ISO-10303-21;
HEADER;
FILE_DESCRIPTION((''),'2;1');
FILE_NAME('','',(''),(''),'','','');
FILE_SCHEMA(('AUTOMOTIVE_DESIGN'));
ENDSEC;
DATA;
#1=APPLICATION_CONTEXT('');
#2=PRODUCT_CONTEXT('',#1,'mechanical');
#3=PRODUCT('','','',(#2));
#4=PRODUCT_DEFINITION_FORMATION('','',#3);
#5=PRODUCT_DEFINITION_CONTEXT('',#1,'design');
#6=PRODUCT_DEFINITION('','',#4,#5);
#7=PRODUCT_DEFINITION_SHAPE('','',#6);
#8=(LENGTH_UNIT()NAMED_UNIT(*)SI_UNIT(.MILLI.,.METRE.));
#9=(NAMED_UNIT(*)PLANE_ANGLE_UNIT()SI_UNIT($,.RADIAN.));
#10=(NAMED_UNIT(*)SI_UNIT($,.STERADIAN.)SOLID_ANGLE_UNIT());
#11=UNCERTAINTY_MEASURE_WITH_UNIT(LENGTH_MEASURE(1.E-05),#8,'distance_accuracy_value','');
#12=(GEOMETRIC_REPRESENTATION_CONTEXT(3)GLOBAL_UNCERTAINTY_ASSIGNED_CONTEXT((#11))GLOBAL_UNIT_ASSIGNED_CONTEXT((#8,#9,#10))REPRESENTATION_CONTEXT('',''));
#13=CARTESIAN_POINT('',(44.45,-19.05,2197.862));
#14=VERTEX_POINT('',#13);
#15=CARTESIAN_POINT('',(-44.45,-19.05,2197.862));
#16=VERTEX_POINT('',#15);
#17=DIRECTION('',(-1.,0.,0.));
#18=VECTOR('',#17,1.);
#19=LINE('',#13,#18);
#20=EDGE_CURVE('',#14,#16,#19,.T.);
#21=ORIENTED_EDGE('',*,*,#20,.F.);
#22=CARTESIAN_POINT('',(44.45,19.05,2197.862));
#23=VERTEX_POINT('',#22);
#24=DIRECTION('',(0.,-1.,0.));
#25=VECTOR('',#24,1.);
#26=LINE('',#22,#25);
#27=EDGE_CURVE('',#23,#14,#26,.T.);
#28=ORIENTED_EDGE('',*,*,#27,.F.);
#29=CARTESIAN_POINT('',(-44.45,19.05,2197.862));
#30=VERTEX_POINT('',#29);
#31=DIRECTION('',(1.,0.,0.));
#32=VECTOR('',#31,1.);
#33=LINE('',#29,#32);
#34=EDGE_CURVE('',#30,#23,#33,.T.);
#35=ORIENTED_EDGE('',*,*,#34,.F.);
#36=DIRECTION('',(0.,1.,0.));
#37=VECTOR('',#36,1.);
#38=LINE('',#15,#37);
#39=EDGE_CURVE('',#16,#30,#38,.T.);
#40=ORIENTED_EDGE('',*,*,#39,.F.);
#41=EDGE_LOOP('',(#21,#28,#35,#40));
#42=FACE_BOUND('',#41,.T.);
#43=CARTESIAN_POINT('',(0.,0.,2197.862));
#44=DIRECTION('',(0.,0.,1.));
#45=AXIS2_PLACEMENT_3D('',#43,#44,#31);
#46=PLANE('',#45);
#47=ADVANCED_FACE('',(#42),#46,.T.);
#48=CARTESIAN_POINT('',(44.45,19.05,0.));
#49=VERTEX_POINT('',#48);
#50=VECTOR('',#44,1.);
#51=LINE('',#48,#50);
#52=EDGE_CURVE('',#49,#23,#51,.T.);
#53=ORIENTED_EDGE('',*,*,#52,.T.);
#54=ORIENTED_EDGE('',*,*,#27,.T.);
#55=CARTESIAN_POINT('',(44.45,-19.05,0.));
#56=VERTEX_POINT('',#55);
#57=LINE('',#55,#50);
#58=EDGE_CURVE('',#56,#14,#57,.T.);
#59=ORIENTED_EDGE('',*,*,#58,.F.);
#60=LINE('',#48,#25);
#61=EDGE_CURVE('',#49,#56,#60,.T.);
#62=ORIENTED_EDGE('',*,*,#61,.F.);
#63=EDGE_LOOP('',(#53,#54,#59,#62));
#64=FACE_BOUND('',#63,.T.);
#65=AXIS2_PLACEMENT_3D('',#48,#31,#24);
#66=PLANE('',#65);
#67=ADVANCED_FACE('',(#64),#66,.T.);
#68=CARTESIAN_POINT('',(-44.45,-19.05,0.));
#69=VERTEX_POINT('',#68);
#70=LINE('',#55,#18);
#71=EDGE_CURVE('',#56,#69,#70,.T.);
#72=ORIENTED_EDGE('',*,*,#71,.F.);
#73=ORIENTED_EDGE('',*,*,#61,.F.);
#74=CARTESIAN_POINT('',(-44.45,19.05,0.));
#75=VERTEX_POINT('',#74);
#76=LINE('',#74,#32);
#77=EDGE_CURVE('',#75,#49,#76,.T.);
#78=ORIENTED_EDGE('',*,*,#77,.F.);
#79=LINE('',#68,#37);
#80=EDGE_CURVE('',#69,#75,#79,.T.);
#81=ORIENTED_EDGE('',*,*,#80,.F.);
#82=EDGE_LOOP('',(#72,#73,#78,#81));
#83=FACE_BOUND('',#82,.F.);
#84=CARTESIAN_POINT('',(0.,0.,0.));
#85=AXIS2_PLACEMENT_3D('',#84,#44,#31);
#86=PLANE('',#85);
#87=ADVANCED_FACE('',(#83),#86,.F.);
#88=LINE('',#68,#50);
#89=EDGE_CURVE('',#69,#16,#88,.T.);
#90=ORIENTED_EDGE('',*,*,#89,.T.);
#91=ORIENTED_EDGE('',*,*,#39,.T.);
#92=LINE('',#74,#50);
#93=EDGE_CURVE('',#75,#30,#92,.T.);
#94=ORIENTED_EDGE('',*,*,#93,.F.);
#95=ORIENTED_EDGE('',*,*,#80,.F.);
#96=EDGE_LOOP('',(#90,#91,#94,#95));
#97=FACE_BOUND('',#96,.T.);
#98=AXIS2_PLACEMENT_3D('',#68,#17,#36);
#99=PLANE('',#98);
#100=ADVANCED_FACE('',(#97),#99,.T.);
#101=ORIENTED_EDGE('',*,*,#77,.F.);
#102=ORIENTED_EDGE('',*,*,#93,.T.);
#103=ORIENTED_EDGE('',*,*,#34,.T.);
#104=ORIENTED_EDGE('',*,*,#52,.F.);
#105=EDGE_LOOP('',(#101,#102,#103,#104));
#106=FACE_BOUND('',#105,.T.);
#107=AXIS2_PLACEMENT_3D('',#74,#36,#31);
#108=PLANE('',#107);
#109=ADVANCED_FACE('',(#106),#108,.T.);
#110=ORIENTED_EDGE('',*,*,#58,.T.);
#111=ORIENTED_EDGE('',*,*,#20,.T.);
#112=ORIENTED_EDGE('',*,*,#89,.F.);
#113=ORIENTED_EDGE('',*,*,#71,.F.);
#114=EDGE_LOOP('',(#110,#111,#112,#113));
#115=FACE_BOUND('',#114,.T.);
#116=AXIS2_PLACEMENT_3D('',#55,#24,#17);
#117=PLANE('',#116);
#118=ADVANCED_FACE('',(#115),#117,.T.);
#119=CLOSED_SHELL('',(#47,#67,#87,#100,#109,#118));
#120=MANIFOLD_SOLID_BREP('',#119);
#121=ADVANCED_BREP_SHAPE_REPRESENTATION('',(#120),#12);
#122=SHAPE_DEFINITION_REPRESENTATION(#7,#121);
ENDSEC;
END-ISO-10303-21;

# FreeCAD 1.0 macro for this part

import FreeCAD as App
import Part
import Sketcher
from FreeCAD import Vector
Q = App.Units.Quantity

doc = App.newDocument("Part")
body = doc.addObject("PartDesign::Body", "Body")

sketch1 = body.newObject("Sketcher::SketchObject", "Sketch")
sketch1.AttachmentSupport = (doc.getObject("XY_Plane"), [""])
sketch1.MapMode = "FlatFace"
sketch1.addGeometry([
    Part.LineSegment(Vector(-44.45, -19.05, 0), Vector(44.45, -19.05, 0)),
    Part.LineSegment(Vector(44.45, -19.05, 0), Vector(44.45, 19.05, 0)),
    Part.LineSegment(Vector(44.45, 19.05, 0), Vector(-44.45, 19.05, 0)),
    Part.LineSegment(Vector(-44.45, 19.05, 0), Vector(-44.45, -19.05, 0)),
], False)
sketch1.addConstraint([
    Sketcher.Constraint("Coincident", 0, 2, 1, 1),
    Sketcher.Constraint("Coincident", 1, 2, 2, 1),
    Sketcher.Constraint("Coincident", 2, 2, 3, 1),
    Sketcher.Constraint("Coincident", 3, 2, 0, 1),
    Sketcher.Constraint("Horizontal", 0),
    Sketcher.Constraint("Vertical", 1),
    Sketcher.Constraint("Horizontal", 2),
    Sketcher.Constraint("Vertical", 3),
    Sketcher.Constraint("Symmetric", 0, 2, 2, 2, -1, 1),
    Sketcher.Constraint("DistanceX", 0, 1, 0, 2, Q("3.5 in")),
    Sketcher.Constraint("DistanceY", 1, 1, 1, 2, Q("1.5 in")),
])
pad1 = body.newObject("PartDesign::Pad", "Pad")
pad1.Profile = sketch1
pad1.Length = Q("86.53 in")

doc.recompute()
